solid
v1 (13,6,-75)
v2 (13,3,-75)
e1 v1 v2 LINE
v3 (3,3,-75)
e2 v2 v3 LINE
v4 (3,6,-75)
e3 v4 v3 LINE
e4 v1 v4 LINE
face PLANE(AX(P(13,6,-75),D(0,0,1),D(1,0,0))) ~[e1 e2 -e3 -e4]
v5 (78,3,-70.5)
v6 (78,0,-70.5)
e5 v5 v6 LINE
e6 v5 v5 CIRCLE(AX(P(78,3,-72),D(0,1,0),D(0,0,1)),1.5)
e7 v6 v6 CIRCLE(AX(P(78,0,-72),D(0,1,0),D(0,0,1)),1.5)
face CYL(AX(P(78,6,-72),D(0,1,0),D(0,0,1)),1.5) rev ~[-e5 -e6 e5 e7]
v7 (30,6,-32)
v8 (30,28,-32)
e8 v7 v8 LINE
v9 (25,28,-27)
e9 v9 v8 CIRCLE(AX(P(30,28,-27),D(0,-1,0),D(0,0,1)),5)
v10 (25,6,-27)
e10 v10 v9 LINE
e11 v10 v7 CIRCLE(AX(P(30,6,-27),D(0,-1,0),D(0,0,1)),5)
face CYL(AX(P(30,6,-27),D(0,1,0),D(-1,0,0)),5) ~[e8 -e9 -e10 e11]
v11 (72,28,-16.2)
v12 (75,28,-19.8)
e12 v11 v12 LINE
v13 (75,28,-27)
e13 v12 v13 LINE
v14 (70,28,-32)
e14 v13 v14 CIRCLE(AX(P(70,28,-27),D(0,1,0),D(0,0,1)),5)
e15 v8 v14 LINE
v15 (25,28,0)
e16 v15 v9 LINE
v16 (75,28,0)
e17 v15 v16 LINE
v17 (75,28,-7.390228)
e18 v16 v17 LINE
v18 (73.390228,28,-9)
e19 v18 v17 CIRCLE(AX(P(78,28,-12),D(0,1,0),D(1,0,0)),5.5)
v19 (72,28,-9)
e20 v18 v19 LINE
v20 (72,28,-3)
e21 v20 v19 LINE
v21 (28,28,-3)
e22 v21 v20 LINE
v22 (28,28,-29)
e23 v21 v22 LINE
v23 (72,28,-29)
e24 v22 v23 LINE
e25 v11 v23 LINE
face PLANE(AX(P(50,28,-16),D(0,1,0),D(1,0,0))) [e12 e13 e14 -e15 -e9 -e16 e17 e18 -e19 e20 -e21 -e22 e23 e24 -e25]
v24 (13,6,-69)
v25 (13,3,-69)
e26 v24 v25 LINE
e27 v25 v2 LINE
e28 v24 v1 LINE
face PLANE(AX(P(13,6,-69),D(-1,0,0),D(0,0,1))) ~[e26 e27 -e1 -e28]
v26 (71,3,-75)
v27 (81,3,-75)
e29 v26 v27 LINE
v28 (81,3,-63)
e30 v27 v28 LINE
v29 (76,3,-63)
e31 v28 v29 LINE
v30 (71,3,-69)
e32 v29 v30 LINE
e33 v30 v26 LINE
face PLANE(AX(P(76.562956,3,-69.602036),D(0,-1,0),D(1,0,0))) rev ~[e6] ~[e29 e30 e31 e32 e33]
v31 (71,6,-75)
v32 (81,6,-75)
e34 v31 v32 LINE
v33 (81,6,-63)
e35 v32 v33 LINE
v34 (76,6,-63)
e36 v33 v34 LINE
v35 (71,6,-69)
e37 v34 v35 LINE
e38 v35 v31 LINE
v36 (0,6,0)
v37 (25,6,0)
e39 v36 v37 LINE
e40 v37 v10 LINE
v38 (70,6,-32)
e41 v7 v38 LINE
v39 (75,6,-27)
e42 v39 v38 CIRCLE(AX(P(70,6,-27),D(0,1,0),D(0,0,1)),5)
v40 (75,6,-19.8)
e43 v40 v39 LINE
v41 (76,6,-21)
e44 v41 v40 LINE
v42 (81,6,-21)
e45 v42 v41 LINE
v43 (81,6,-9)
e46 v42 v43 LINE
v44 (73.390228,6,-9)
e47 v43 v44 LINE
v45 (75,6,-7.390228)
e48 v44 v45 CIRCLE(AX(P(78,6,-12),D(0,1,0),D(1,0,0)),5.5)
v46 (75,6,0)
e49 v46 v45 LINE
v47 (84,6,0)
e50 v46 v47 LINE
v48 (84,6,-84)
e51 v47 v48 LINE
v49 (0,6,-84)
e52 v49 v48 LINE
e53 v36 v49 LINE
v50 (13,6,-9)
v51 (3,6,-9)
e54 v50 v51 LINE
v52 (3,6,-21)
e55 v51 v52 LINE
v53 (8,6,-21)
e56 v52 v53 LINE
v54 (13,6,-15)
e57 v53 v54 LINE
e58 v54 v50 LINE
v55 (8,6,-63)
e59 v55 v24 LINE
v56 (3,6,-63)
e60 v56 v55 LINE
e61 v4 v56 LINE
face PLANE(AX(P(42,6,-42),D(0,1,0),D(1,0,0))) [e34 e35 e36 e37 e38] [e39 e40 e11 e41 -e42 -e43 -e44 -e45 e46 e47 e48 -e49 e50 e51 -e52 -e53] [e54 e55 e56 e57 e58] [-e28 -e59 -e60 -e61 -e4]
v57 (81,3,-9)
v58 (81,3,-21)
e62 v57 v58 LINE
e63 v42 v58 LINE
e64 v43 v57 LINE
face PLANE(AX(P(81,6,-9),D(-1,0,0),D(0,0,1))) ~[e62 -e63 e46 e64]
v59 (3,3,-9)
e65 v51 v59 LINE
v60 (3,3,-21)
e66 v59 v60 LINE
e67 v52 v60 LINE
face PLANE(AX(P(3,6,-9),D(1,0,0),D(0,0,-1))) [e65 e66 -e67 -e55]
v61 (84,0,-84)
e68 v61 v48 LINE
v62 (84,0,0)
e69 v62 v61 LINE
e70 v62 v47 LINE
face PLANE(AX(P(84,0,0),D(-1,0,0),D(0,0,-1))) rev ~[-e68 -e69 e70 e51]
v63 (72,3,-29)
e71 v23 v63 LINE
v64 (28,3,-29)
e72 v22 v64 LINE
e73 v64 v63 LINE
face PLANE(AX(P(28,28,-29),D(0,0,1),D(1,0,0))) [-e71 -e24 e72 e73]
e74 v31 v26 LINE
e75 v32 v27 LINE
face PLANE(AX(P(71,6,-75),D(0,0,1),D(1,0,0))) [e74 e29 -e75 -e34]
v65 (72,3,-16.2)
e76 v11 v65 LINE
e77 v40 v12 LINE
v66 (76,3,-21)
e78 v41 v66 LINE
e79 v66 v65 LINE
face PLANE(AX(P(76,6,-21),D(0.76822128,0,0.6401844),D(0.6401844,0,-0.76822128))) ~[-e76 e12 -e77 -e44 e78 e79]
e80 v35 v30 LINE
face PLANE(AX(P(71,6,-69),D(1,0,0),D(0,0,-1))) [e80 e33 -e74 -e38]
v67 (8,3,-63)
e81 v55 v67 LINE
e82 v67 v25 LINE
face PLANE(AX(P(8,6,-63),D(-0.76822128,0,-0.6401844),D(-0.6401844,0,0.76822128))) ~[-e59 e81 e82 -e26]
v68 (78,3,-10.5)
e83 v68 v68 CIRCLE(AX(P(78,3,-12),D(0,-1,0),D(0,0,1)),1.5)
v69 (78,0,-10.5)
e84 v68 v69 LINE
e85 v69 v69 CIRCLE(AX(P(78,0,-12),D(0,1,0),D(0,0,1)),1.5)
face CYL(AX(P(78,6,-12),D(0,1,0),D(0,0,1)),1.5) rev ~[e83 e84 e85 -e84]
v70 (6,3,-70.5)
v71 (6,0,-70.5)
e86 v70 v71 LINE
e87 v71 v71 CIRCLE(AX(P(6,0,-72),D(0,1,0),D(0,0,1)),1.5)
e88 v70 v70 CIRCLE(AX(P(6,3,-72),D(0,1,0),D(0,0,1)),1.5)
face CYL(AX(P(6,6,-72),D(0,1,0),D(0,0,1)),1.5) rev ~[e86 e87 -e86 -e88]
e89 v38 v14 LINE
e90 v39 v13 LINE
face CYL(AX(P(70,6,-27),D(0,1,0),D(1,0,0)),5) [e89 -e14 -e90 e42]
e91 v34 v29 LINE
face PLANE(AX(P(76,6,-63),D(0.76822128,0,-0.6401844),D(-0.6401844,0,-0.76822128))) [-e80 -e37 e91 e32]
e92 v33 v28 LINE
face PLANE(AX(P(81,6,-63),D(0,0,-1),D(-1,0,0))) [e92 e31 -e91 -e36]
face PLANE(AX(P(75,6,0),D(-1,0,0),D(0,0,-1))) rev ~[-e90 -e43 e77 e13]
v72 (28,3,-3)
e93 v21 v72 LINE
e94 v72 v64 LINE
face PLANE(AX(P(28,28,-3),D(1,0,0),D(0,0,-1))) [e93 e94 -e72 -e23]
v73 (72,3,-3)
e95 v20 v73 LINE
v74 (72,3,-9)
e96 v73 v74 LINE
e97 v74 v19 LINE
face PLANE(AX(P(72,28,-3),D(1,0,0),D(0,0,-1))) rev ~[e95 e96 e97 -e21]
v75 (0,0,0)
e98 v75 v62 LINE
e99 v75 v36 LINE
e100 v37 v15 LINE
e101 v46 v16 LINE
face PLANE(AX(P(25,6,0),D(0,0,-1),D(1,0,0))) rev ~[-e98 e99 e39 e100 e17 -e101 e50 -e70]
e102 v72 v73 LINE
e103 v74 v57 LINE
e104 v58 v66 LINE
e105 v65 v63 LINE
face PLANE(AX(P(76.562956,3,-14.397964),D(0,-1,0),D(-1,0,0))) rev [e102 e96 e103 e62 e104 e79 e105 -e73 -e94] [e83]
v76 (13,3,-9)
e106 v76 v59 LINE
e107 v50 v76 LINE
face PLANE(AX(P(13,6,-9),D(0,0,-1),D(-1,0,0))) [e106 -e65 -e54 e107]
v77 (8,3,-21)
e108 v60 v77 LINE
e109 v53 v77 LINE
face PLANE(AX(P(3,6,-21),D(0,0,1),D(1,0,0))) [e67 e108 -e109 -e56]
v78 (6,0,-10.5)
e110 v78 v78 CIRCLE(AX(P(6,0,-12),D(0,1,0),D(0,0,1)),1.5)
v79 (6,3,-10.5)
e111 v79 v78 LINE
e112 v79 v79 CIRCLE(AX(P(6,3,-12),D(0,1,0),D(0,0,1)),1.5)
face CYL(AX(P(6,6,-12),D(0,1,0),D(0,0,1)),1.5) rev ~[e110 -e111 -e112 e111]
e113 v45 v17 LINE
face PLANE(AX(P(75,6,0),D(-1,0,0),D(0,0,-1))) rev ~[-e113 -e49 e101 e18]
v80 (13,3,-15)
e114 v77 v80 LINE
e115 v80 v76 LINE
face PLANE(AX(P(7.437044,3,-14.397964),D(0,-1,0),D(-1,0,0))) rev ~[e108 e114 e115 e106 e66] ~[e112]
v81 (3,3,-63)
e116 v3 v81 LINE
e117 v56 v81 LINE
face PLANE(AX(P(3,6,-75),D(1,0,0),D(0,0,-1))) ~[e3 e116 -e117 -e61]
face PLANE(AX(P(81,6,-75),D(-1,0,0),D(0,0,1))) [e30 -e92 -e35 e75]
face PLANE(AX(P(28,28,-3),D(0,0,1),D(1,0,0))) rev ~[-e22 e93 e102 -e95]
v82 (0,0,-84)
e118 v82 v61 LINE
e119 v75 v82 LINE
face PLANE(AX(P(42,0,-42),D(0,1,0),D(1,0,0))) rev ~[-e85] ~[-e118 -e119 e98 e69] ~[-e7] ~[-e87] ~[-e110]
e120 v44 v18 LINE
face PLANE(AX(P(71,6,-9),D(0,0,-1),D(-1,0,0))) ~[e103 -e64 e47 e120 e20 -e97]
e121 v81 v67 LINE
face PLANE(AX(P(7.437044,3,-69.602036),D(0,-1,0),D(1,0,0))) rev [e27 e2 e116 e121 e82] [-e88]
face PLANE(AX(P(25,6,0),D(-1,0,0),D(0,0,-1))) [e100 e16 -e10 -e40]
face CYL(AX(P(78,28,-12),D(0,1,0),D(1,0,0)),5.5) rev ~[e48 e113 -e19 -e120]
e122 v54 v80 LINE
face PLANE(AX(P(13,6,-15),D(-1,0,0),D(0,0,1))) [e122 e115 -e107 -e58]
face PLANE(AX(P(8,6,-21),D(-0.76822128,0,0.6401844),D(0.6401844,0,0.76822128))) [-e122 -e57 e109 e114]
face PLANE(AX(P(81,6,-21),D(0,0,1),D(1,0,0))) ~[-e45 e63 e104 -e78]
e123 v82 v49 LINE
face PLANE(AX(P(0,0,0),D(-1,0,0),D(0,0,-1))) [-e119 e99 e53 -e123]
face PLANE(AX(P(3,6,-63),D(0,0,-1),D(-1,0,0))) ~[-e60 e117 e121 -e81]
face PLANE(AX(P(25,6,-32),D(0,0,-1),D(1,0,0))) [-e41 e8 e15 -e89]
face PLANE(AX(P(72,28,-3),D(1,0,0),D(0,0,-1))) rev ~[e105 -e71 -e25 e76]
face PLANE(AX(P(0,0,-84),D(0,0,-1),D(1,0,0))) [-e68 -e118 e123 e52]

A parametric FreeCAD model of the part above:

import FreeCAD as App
import Part
import Sketcher

V = App.Vector


def edges_at(feature, points):
    """Names of the edges that pass closest to the given points."""
    edges = feature.Shape.Edges
    near = lambda p: min(range(len(edges)), key=lambda i: edges[i].distToShape(Part.Vertex(*p))[0])
    return sorted({f"Edge{near(p) + 1}" for p in points})


def add_polygon(sketch, points):
    """Adds a closed chain of lines whose ends are joined by coincident constraints."""
    first, n = sketch.GeometryCount, len(points)
    for a, b in zip(points, points[1:] + points[:1]):
        sketch.addGeometry(Part.LineSegment(App.Vector(*a, 0), App.Vector(*b, 0)), False)
    for i in range(n):
        sketch.addConstraint(Sketcher.Constraint("Coincident", first + i, 2, first + (i + 1) % n, 1))

doc = App.newDocument("Part")
body = doc.addObject("PartDesign::Body", "Body")

# Sketch on XZ plane
sketch1 = body.newObject("Sketcher::SketchObject", "Sketch")
sketch1.AttachmentSupport = (doc.getObject("XZ_Plane"), [""])
sketch1.MapMode = "FlatFace"
add_polygon(sketch1, [(0, -84), (0, 0), (84, 0), (84, -84)])  # lines 0-3
sketch1.addConstraint(Sketcher.Constraint("Vertical", 0))
sketch1.addConstraint(Sketcher.Constraint("Horizontal", 1))
sketch1.addConstraint(Sketcher.Constraint("Vertical", 2))
sketch1.addConstraint(Sketcher.Constraint("Horizontal", 3))
sketch1.addConstraint(Sketcher.Constraint("Coincident", 0, 2, -1, 1))
sketch1.addConstraint(Sketcher.Constraint("Equal", 3, 0))
sketch1.addConstraint(Sketcher.Constraint("DistanceX", 1, 1, 1, 2, 84.0))
pad1 = body.newObject("PartDesign::Pad", "Pad")
pad1.Profile = sketch1
pad1.Length = 6
pad1.Reversed = True

# Sketch on XZ plane
sketch2 = body.newObject("Sketcher::SketchObject", "Sketch001")
sketch2.AttachmentSupport = (doc.getObject("XZ_Plane"), [""])
sketch2.MapMode = "FlatFace"
sketch2.AttachmentOffset = App.Placement(V(0, 0, -6), App.Rotation())
sketch2.addGeometry(Part.Circle(V(6, -72, 0), V(0, 0, 1), 1.5), False)
sketch2.addGeometry(Part.Circle(V(6, -12, 0), V(0, 0, 1), 1.5), False)
sketch2.addGeometry(Part.Circle(V(78, -12, 0), V(0, 0, 1), 1.5), False)
sketch2.addGeometry(Part.Circle(V(78, -72, 0), V(0, 0, 1), 1.5), False)
sketch2.addConstraint(Sketcher.Constraint("Equal", 0, 1))
sketch2.addConstraint(Sketcher.Constraint("Equal", 1, 2))
sketch2.addConstraint(Sketcher.Constraint("Equal", 2, 3))
sketch2.addConstraint(Sketcher.Constraint("Horizontal", 1, 3, 2, 3))
sketch2.addConstraint(Sketcher.Constraint("Horizontal", 0, 3, 3, 3))
sketch2.addConstraint(Sketcher.Constraint("Vertical", 0, 3, 1, 3))
sketch2.addConstraint(Sketcher.Constraint("Vertical", 2, 3, 3, 3))
sketch2.addConstraint(Sketcher.Constraint("Diameter", 0, 3.0))
sketch2.addConstraint(Sketcher.Constraint("DistanceX", -1, 1, 0, 3, 6.0))
sketch2.addConstraint(Sketcher.Constraint("DistanceY", 0, 3, -1, 1, 72.0))
sketch2.addConstraint(Sketcher.Constraint("DistanceY", 1, 3, -1, 1, 12.0))
sketch2.addConstraint(Sketcher.Constraint("DistanceX", -1, 1, 2, 3, 78.0))
pocket1 = body.newObject("PartDesign::Pocket", "Pocket")
pocket1.Profile = sketch2
pocket1.Type = "ThroughAll"
pocket1.Reversed = True

# Sketch on XZ plane
sketch3 = body.newObject("Sketcher::SketchObject", "Sketch002")
sketch3.AttachmentSupport = (doc.getObject("XZ_Plane"), [""])
sketch3.MapMode = "FlatFace"
sketch3.AttachmentOffset = App.Placement(V(0, 0, -6), App.Rotation())
add_polygon(sketch3, [(13, -9), (13, -15), (8, -21), (3, -21), (3, -9)])  # lines 0-4
sketch3.addGeometry(Part.Circle(V(6, -12, 0), V(0, 0, 1), 1.5), False)  # 5
sketch3.addConstraint(Sketcher.Constraint("Vertical", 0))
sketch3.addConstraint(Sketcher.Constraint("Horizontal", 2))
sketch3.addConstraint(Sketcher.Constraint("Vertical", 3))
sketch3.addConstraint(Sketcher.Constraint("Horizontal", 4))
sketch3.addConstraint(Sketcher.Constraint("Diameter", 5, 3.0))
sketch3.addConstraint(Sketcher.Constraint("DistanceX", 2, 2, 2, 1, 5.0))
sketch3.addConstraint(Sketcher.Constraint("DistanceX", 4, 1, 4, 2, 10.0))
sketch3.addConstraint(Sketcher.Constraint("DistanceY", 0, 2, 0, 1, 6.0))
sketch3.addConstraint(Sketcher.Constraint("DistanceY", 3, 1, 3, 2, 12.0))
sketch3.addConstraint(Sketcher.Constraint("DistanceX", -1, 1, 5, 3, 6.0))
sketch3.addConstraint(Sketcher.Constraint("DistanceY", 5, 3, -1, 1, 12.0))
sketch3.addConstraint(Sketcher.Constraint("DistanceX", -1, 1, 0, 2, 13.0))
sketch3.addConstraint(Sketcher.Constraint("DistanceY", 0, 2, -1, 1, 15.0))
pocket2 = body.newObject("PartDesign::Pocket", "Pocket001")
pocket2.Profile = sketch3
pocket2.Length = 3
pocket2.Reversed = True
doc.recompute()

datumplane = body.newObject("PartDesign::Plane", "DatumPlane")
datumplane.AttachmentSupport = (doc.getObject("XY_Plane"), [""])
datumplane.MapMode = "FlatFace"
datumplane.AttachmentOffset = App.Placement(V(0, 0, -42), App.Rotation())
mirrored = body.newObject("PartDesign::Mirrored", "Mirrored")
mirrored.Originals = [pocket2]
mirrored.MirrorPlane = (datumplane, [""])
body.Tip = mirrored
doc.recompute()

datumplane2 = body.newObject("PartDesign::Plane", "DatumPlane001")
datumplane2.AttachmentSupport = (doc.getObject("YZ_Plane"), [""])
datumplane2.MapMode = "FlatFace"
datumplane2.AttachmentOffset = App.Placement(V(0, 0, 42), App.Rotation())
mirrored2 = body.newObject("PartDesign::Mirrored", "Mirrored001")
mirrored2.Originals = [pocket2]
mirrored2.MirrorPlane = (datumplane2, [""])
body.Tip = mirrored2

# Sketch on XZ plane
sketch4 = body.newObject("Sketcher::SketchObject", "Sketch003")
sketch4.AttachmentSupport = (doc.getObject("XZ_Plane"), [""])
sketch4.MapMode = "FlatFace"
sketch4.AttachmentOffset = App.Placement(V(0, 0, -6), App.Rotation())
add_polygon(sketch4, [(71, -75), (71, -69), (76, -63), (81, -63), (81, -75)])  # lines 0-4
sketch4.addGeometry(Part.Circle(V(78, -72, 0), V(0, 0, 1), 1.5), False)  # 5
sketch4.addConstraint(Sketcher.Constraint("Vertical", 0))
sketch4.addConstraint(Sketcher.Constraint("Horizontal", 2))
sketch4.addConstraint(Sketcher.Constraint("Vertical", 3))
sketch4.addConstraint(Sketcher.Constraint("Horizontal", 4))
sketch4.addConstraint(Sketcher.Constraint("Diameter", 5, 3.0))
sketch4.addConstraint(Sketcher.Constraint("DistanceX", 2, 1, 2, 2, 5.0))
sketch4.addConstraint(Sketcher.Constraint("DistanceX", 4, 2, 4, 1, 10.0))
sketch4.addConstraint(Sketcher.Constraint("DistanceY", 0, 1, 0, 2, 6.0))
sketch4.addConstraint(Sketcher.Constraint("DistanceY", 3, 2, 3, 1, 12.0))
sketch4.addConstraint(Sketcher.Constraint("DistanceX", -1, 1, 5, 3, 78.0))
sketch4.addConstraint(Sketcher.Constraint("DistanceY", 5, 3, -1, 1, 72.0))
sketch4.addConstraint(Sketcher.Constraint("DistanceX", -1, 1, 0, 2, 71.0))
sketch4.addConstraint(Sketcher.Constraint("DistanceY", 0, 2, -1, 1, 69.0))
pocket3 = body.newObject("PartDesign::Pocket", "Pocket002")
pocket3.Profile = sketch4
pocket3.Length = 3
pocket3.Reversed = True

# Sketch on XZ plane
sketch5 = body.newObject("Sketcher::SketchObject", "Sketch004")
sketch5.AttachmentSupport = (doc.getObject("XZ_Plane"), [""])
sketch5.MapMode = "FlatFace"
sketch5.AttachmentOffset = App.Placement(V(0, 0, -6), App.Rotation())
add_polygon(sketch5, [(25, -32), (25, 0), (75, 0), (75, -32)])  # lines 0-3
sketch5.addConstraint(Sketcher.Constraint("Vertical", 0))
sketch5.addConstraint(Sketcher.Constraint("Horizontal", 1))
sketch5.addConstraint(Sketcher.Constraint("Vertical", 2))
sketch5.addConstraint(Sketcher.Constraint("Horizontal", 3))
sketch5.addConstraint(Sketcher.Constraint("PointOnObject", 0, 2, -1))
sketch5.addConstraint(Sketcher.Constraint("DistanceX", 1, 1, 1, 2, 50.0))
sketch5.addConstraint(Sketcher.Constraint("DistanceY", 0, 1, 0, 2, 32.0))
sketch5.addConstraint(Sketcher.Constraint("DistanceX", -1, 1, 0, 2, 25.0))
pad2 = body.newObject("PartDesign::Pad", "Pad001")
pad2.Profile = sketch5
pad2.Length = 22
pad2.Reversed = True

# Sketch on XZ plane
sketch6 = body.newObject("Sketcher::SketchObject", "Sketch005")
sketch6.AttachmentSupport = (doc.getObject("XZ_Plane"), [""])
sketch6.MapMode = "FlatFace"
sketch6.AttachmentOffset = App.Placement(V(0, 0, -28), App.Rotation())
add_polygon(sketch6, [(28, -29), (28, -3), (72, -3), (72, -29)])  # lines 0-3
sketch6.addConstraint(Sketcher.Constraint("Vertical", 0))
sketch6.addConstraint(Sketcher.Constraint("Horizontal", 1))
sketch6.addConstraint(Sketcher.Constraint("Vertical", 2))
sketch6.addConstraint(Sketcher.Constraint("Horizontal", 3))
sketch6.addConstraint(Sketcher.Constraint("DistanceX", 1, 1, 1, 2, 44.0))
sketch6.addConstraint(Sketcher.Constraint("DistanceY", 0, 1, 0, 2, 26.0))
sketch6.addConstraint(Sketcher.Constraint("DistanceX", -1, 1, 0, 2, 28.0))
sketch6.addConstraint(Sketcher.Constraint("DistanceY", 0, 2, -1, 1, 3.0))
pocket4 = body.newObject("PartDesign::Pocket", "Pocket003")
pocket4.Profile = sketch6
pocket4.Length = 25
pocket4.Reversed = True

# Sketch on XZ plane
sketch7 = body.newObject("Sketcher::SketchObject", "Sketch006")
sketch7.AttachmentSupport = (doc.getObject("XZ_Plane"), [""])
sketch7.MapMode = "FlatFace"
sketch7.AttachmentOffset = App.Placement(V(0, 0, -28), App.Rotation())
sketch7.addGeometry(Part.Circle(V(78, -12, 0), V(0, 0, 1), 6), False)
sketch7.addConstraint(Sketcher.Constraint("Diameter", 0, 11.0))
sketch7.addConstraint(Sketcher.Constraint("DistanceX", -1, 1, 0, 3, 78.0))
sketch7.addConstraint(Sketcher.Constraint("DistanceY", 0, 3, -1, 1, 12.0))
pocket5 = body.newObject("PartDesign::Pocket", "Pocket004")
pocket5.Profile = sketch7
pocket5.Length = 22
pocket5.Reversed = True

# Sketch on XZ plane
sketch8 = body.newObject("Sketcher::SketchObject", "Sketch007")
sketch8.AttachmentSupport = (doc.getObject("XZ_Plane"), [""])
sketch8.MapMode = "FlatFace"
sketch8.AttachmentOffset = App.Placement(V(0, 0, -3), App.Rotation())
add_polygon(sketch8, [(72, -9), (81, -9), (81, -21), (76, -21), (72, -16), (72, -29), (28, -29), (28, -3), (72, -3)])  # lines 0-8
sketch8.addConstraint(Sketcher.Constraint("Horizontal", 0))
sketch8.addConstraint(Sketcher.Constraint("Vertical", 1))
sketch8.addConstraint(Sketcher.Constraint("Horizontal", 2))
sketch8.addConstraint(Sketcher.Constraint("Vertical", 4))
sketch8.addConstraint(Sketcher.Constraint("Horizontal", 5))
sketch8.addConstraint(Sketcher.Constraint("Vertical", 6))
sketch8.addConstraint(Sketcher.Constraint("Horizontal", 7))
sketch8.addConstraint(Sketcher.Constraint("Vertical", 8))
sketch8.addConstraint(Sketcher.Constraint("Vertical", 4, 2, 7, 2))
sketch8.addConstraint(Sketcher.Constraint("DistanceX", 0, 1, 0, 2, 9.0))
sketch8.addConstraint(Sketcher.Constraint("DistanceX", 2, 2, 2, 1, 5.0))
sketch8.addConstraint(Sketcher.Constraint("DistanceX", 5, 2, 5, 1, 44.0))
sketch8.addConstraint(Sketcher.Constraint("DistanceY", 1, 2, 1, 1, 12.0))
sketch8.addConstraint(Sketcher.Constraint("DistanceY", 6, 1, 6, 2, 26.0))
sketch8.addConstraint(Sketcher.Constraint("DistanceY", 8, 2, 8, 1, 6.0))
sketch8.addConstraint(Sketcher.Constraint("DistanceY", 4, 2, 4, 1, 12.8))
sketch8.addConstraint(Sketcher.Constraint("DistanceX", -1, 1, 0, 2, 81.0))
sketch8.addConstraint(Sketcher.Constraint("DistanceY", 0, 2, -1, 1, 9.0))
pocket6 = body.newObject("PartDesign::Pocket", "Pocket005")
pocket6.Profile = sketch8
pocket6.Type = "ThroughAll"
doc.recompute()

fillet = body.newObject("PartDesign::Fillet", "Fillet")
fillet.Base = (pocket6, edges_at(pocket6, [(75, 17, -32), (25, 17, -32)]))
fillet.Radius = 5

doc.recompute()
